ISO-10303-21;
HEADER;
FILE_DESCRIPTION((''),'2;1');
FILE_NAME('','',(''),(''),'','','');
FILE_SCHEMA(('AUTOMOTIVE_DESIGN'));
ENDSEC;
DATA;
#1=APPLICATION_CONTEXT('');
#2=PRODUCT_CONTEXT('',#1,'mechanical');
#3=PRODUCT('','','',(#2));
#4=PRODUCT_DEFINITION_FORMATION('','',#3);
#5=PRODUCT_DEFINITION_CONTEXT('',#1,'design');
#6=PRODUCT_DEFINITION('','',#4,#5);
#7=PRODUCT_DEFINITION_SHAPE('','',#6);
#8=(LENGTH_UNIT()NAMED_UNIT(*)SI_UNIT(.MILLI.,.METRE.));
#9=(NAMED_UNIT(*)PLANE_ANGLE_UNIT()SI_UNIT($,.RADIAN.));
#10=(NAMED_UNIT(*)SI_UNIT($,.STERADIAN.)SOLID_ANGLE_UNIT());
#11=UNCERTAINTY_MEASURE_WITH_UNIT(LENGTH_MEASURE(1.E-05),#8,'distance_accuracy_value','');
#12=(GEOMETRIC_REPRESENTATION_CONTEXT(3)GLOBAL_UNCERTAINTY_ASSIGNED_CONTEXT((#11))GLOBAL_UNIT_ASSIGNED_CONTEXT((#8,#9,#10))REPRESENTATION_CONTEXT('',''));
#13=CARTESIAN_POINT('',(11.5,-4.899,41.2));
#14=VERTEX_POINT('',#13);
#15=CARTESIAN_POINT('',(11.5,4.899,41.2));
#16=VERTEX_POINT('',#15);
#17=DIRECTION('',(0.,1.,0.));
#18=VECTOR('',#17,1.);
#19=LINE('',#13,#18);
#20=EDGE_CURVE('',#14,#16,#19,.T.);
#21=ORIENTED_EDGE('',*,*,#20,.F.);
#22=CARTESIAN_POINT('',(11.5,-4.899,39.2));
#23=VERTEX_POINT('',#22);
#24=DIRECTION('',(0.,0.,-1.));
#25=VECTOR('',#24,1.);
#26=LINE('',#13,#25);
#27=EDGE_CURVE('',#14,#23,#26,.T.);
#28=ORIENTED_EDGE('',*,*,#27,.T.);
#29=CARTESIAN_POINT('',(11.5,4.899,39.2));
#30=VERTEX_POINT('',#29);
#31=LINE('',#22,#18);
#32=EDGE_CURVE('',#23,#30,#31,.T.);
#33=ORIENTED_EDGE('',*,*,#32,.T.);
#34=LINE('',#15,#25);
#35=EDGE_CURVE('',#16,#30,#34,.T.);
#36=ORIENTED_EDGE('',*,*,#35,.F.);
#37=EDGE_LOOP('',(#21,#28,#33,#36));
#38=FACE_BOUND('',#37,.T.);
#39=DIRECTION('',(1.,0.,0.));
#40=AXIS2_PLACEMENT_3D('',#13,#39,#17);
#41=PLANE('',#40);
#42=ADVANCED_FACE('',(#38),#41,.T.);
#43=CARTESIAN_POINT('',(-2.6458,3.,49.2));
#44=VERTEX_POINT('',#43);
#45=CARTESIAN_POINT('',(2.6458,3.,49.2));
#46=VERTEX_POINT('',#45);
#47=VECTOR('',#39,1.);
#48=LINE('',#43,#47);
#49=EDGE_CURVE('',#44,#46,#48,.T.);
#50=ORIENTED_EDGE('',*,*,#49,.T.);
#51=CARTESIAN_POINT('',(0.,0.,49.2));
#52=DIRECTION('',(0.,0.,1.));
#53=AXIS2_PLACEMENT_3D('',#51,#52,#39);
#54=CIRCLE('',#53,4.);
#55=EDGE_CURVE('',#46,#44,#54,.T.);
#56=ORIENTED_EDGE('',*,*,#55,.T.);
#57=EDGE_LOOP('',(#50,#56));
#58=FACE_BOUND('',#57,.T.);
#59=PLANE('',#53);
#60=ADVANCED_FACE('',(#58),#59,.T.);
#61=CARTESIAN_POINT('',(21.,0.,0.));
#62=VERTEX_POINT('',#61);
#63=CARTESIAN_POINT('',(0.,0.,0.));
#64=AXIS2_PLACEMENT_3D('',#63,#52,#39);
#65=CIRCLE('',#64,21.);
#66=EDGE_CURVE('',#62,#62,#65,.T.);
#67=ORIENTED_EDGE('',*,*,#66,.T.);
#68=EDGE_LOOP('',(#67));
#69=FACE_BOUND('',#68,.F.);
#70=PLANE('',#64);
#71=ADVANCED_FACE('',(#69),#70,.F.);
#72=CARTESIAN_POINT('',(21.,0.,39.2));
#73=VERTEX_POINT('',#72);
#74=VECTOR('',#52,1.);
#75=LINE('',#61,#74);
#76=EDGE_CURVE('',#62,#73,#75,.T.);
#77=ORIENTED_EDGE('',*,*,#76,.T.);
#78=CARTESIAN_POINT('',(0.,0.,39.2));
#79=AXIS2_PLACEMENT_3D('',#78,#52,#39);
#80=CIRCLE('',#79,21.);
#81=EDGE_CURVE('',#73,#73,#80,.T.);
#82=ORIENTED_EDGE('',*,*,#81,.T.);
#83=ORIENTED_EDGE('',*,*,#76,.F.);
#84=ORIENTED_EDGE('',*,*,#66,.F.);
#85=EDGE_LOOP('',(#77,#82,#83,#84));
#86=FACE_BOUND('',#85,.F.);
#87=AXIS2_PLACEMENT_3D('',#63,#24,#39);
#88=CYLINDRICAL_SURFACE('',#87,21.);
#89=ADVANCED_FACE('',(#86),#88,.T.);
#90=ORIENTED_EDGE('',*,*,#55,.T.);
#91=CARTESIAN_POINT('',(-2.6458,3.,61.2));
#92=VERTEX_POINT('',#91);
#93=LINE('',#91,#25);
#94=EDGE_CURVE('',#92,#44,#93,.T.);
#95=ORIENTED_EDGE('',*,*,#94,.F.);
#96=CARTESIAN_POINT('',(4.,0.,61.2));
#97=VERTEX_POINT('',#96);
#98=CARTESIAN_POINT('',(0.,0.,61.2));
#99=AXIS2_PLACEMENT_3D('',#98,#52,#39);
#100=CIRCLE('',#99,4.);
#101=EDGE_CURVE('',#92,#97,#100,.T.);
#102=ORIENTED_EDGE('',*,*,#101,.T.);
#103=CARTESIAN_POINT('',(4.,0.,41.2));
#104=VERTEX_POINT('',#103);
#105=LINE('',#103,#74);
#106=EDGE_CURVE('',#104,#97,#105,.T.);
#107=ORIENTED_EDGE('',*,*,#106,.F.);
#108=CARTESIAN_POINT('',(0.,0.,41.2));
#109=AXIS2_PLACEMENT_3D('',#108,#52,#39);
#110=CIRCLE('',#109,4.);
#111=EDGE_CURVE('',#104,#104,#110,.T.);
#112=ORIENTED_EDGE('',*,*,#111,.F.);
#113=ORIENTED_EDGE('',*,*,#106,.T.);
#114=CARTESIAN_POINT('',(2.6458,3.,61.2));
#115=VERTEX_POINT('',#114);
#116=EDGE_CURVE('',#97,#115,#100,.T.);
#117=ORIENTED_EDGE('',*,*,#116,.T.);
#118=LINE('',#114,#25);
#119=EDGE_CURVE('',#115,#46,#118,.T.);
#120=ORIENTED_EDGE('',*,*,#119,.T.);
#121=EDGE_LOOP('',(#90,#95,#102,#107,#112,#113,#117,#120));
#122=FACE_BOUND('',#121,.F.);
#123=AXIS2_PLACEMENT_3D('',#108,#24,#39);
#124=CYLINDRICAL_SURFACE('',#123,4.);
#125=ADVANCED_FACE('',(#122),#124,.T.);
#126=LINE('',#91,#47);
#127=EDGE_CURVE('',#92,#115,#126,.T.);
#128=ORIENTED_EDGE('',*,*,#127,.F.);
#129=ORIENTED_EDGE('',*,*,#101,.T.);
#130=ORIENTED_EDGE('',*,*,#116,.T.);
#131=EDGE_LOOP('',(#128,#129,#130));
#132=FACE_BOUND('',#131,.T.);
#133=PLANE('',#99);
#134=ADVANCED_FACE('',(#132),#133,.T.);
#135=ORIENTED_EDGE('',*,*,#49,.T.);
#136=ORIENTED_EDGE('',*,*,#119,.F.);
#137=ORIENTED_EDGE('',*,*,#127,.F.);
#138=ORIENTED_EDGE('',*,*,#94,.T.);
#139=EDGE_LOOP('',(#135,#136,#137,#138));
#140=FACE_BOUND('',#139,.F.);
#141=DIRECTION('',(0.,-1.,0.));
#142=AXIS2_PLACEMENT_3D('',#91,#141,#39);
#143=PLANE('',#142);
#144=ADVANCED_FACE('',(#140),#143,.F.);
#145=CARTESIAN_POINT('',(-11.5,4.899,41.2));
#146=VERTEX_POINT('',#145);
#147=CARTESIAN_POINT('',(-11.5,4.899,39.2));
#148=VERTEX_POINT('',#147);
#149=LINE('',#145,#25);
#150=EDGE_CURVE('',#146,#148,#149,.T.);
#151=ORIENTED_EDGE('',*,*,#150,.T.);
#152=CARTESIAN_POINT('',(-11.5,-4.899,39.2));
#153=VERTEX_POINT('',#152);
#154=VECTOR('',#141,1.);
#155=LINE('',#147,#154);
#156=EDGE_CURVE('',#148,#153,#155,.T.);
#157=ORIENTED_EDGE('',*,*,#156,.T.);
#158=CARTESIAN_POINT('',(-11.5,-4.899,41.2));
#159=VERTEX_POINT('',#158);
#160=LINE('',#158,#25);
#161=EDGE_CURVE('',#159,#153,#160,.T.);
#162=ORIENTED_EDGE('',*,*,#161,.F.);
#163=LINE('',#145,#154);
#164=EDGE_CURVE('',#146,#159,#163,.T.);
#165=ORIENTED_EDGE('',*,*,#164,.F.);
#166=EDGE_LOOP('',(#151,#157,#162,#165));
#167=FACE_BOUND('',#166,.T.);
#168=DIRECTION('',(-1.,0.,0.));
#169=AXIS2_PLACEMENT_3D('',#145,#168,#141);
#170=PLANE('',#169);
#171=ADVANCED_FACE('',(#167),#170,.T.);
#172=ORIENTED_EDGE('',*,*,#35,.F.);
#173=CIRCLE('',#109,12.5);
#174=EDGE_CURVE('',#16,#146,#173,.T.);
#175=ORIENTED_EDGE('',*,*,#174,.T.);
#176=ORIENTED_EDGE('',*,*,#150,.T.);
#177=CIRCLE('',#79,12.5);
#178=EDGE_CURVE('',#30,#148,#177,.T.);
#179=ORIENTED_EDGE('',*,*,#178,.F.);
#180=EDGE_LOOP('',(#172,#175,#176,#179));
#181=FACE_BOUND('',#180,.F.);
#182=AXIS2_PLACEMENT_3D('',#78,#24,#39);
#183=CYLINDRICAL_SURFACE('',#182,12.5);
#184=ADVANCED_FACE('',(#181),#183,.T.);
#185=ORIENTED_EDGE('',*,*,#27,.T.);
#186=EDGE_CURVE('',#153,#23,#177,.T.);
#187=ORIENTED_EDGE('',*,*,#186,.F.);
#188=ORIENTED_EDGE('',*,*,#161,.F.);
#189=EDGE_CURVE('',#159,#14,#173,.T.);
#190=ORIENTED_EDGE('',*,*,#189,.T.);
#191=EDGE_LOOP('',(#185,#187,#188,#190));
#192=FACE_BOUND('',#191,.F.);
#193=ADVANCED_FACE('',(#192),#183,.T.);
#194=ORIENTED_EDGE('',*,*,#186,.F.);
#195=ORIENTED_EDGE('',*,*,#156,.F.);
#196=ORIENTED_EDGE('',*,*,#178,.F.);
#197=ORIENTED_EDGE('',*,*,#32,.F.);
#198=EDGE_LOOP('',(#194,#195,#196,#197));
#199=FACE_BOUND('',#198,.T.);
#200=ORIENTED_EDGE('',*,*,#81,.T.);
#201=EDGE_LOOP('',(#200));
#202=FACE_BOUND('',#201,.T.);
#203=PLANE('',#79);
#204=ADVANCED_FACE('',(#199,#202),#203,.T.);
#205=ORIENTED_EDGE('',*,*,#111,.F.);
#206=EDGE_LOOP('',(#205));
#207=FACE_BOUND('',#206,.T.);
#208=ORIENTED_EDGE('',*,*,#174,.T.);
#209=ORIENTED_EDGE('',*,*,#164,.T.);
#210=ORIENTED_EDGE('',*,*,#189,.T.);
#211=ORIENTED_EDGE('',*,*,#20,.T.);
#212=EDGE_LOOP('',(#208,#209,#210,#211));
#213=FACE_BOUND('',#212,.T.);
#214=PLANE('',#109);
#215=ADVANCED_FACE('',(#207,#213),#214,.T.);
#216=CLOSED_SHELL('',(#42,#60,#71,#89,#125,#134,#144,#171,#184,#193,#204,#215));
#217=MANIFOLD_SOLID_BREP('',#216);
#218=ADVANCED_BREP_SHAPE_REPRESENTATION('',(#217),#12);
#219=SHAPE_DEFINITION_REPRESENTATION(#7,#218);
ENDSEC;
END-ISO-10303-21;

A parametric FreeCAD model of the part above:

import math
import FreeCAD as App
import Part
import Sketcher

V = App.Vector

doc = App.newDocument("Part")
body = doc.addObject("PartDesign::Body", "Body")

sketch1 = body.newObject("Sketcher::SketchObject", "Sketch")
sketch1.AttachmentSupport = (doc.getObject("XY_Plane"), [""])
sketch1.MapMode = "FlatFace"
sketch1.addGeometry(Part.Circle(V(0, 0, 0), V(0, 0, 1), 21), False)
sketch1.addConstraint(Sketcher.Constraint("Coincident", 0, 3, -1, 1))
sketch1.addConstraint(Sketcher.Constraint("Diameter", 0, 42.0))
pad1 = body.newObject("PartDesign::Pad", "Pad")
pad1.Profile = sketch1
pad1.Length = 39.2

sketch2 = body.newObject("Sketcher::SketchObject", "Sketch001")
sketch2.AttachmentSupport = (doc.getObject("XY_Plane"), [""])
sketch2.MapMode = "FlatFace"
sketch2.AttachmentOffset = App.Placement(V(0, 0, 39.2), App.Rotation())
sketch2.addGeometry(Part.Circle(V(0, 0, 0), V(0, 0, 1), 12), False)
sketch2.addConstraint(Sketcher.Constraint("Coincident", 0, 3, -1, 1))
sketch2.addConstraint(Sketcher.Constraint("Diameter", 0, 25.0))
pad2 = body.newObject("PartDesign::Pad", "Pad001")
pad2.Profile = sketch2
pad2.Length = 2

sketch3 = body.newObject("Sketcher::SketchObject", "Sketch002")
sketch3.AttachmentSupport = (doc.getObject("XY_Plane"), [""])
sketch3.MapMode = "FlatFace"
sketch3.AttachmentOffset = App.Placement(V(0, 0, 41.2), App.Rotation())
sketch3.addGeometry(Part.Circle(V(0, 0, 0), V(0, 0, 1), 4), False)
sketch3.addConstraint(Sketcher.Constraint("Coincident", 0, 3, -1, 1))
sketch3.addConstraint(Sketcher.Constraint("Diameter", 0, 8.0))
pad3 = body.newObject("PartDesign::Pad", "Pad002")
pad3.Profile = sketch3
pad3.Length = 20

sketch4 = body.newObject("Sketcher::SketchObject", "Sketch003")
sketch4.AttachmentSupport = (doc.getObject("XY_Plane"), [""])
sketch4.MapMode = "FlatFace"
sketch4.AttachmentOffset = App.Placement(V(0, 0, 61.2), App.Rotation())
sketch4.addGeometry(Part.LineSegment(V(-2.6, 3, 0), V(2.6, 3, 0)), False)
sketch4.addGeometry(Part.ArcOfCircle(Part.Circle(V(0, 0, 0), V(0, 0, 1), 4), math.radians(49), math.radians(131)), False)
sketch4.addConstraint(Sketcher.Constraint("Coincident", 0, 1, 1, 2))
sketch4.addConstraint(Sketcher.Constraint("Coincident", 1, 1, 0, 2))
sketch4.addConstraint(Sketcher.Constraint("Horizontal", 0))
sketch4.addConstraint(Sketcher.Constraint("Coincident", 1, 3, -1, 1))
sketch4.addConstraint(Sketcher.Constraint("DistanceY", -1, 1, 0, 1, 3.0))
sketch4.addConstraint(Sketcher.Constraint("Radius", 1, 4.0))
pocket1 = body.newObject("PartDesign::Pocket", "Pocket")
pocket1.Profile = sketch4
pocket1.Length = 12

sketch5 = body.newObject("Sketcher::SketchObject", "Sketch004")
sketch5.AttachmentSupport = (doc.getObject("XY_Plane"), [""])
sketch5.MapMode = "FlatFace"
sketch5.AttachmentOffset = App.Placement(V(0, 0, 41.2), App.Rotation())
sketch5.addGeometry(Part.ArcOfCircle(Part.Circle(V(0, 0, 0), V(0, 0, 1), 12), math.radians(-23), math.radians(23)), False)
sketch5.addGeometry(Part.LineSegment(V(12, -5, 0), V(12, 5, 0)), False)
sketch5.addGeometry(Part.LineSegment(V(-12, -5, 0), V(-12, 5, 0)), False)
sketch5.addGeometry(Part.ArcOfCircle(Part.Circle(V(0, 0, 0), V(0, 0, 1), 12), math.radians(157), math.radians(203)), False)
sketch5.addConstraint(Sketcher.Constraint("Coincident", 0, 1, 1, 1))
sketch5.addConstraint(Sketcher.Constraint("Coincident", 1, 2, 0, 2))
sketch5.addConstraint(Sketcher.Constraint("Coincident", 2, 1, 3, 2))
sketch5.addConstraint(Sketcher.Constraint("Coincident", 3, 1, 2, 2))
sketch5.addConstraint(Sketcher.Constraint("Vertical", 1))
sketch5.addConstraint(Sketcher.Constraint("Vertical", 2))
sketch5.addConstraint(Sketcher.Constraint("Coincident", 0, 3, -1, 1))
sketch5.addConstraint(Sketcher.Constraint("Coincident", 3, 3, -1, 1))
sketch5.addConstraint(Sketcher.Constraint("Equal", 0, 3))
sketch5.addConstraint(Sketcher.Constraint("Horizontal", 0, 1, 2, 1))
sketch5.addConstraint(Sketcher.Constraint("DistanceX", -1, 1, 0, 1, 11.5))
sketch5.addConstraint(Sketcher.Constraint("Radius", 0, 12.5))
pocket2 = body.newObject("PartDesign::Pocket", "Pocket001")
pocket2.Profile = sketch5
pocket2.Length = 2

doc.recompute()
